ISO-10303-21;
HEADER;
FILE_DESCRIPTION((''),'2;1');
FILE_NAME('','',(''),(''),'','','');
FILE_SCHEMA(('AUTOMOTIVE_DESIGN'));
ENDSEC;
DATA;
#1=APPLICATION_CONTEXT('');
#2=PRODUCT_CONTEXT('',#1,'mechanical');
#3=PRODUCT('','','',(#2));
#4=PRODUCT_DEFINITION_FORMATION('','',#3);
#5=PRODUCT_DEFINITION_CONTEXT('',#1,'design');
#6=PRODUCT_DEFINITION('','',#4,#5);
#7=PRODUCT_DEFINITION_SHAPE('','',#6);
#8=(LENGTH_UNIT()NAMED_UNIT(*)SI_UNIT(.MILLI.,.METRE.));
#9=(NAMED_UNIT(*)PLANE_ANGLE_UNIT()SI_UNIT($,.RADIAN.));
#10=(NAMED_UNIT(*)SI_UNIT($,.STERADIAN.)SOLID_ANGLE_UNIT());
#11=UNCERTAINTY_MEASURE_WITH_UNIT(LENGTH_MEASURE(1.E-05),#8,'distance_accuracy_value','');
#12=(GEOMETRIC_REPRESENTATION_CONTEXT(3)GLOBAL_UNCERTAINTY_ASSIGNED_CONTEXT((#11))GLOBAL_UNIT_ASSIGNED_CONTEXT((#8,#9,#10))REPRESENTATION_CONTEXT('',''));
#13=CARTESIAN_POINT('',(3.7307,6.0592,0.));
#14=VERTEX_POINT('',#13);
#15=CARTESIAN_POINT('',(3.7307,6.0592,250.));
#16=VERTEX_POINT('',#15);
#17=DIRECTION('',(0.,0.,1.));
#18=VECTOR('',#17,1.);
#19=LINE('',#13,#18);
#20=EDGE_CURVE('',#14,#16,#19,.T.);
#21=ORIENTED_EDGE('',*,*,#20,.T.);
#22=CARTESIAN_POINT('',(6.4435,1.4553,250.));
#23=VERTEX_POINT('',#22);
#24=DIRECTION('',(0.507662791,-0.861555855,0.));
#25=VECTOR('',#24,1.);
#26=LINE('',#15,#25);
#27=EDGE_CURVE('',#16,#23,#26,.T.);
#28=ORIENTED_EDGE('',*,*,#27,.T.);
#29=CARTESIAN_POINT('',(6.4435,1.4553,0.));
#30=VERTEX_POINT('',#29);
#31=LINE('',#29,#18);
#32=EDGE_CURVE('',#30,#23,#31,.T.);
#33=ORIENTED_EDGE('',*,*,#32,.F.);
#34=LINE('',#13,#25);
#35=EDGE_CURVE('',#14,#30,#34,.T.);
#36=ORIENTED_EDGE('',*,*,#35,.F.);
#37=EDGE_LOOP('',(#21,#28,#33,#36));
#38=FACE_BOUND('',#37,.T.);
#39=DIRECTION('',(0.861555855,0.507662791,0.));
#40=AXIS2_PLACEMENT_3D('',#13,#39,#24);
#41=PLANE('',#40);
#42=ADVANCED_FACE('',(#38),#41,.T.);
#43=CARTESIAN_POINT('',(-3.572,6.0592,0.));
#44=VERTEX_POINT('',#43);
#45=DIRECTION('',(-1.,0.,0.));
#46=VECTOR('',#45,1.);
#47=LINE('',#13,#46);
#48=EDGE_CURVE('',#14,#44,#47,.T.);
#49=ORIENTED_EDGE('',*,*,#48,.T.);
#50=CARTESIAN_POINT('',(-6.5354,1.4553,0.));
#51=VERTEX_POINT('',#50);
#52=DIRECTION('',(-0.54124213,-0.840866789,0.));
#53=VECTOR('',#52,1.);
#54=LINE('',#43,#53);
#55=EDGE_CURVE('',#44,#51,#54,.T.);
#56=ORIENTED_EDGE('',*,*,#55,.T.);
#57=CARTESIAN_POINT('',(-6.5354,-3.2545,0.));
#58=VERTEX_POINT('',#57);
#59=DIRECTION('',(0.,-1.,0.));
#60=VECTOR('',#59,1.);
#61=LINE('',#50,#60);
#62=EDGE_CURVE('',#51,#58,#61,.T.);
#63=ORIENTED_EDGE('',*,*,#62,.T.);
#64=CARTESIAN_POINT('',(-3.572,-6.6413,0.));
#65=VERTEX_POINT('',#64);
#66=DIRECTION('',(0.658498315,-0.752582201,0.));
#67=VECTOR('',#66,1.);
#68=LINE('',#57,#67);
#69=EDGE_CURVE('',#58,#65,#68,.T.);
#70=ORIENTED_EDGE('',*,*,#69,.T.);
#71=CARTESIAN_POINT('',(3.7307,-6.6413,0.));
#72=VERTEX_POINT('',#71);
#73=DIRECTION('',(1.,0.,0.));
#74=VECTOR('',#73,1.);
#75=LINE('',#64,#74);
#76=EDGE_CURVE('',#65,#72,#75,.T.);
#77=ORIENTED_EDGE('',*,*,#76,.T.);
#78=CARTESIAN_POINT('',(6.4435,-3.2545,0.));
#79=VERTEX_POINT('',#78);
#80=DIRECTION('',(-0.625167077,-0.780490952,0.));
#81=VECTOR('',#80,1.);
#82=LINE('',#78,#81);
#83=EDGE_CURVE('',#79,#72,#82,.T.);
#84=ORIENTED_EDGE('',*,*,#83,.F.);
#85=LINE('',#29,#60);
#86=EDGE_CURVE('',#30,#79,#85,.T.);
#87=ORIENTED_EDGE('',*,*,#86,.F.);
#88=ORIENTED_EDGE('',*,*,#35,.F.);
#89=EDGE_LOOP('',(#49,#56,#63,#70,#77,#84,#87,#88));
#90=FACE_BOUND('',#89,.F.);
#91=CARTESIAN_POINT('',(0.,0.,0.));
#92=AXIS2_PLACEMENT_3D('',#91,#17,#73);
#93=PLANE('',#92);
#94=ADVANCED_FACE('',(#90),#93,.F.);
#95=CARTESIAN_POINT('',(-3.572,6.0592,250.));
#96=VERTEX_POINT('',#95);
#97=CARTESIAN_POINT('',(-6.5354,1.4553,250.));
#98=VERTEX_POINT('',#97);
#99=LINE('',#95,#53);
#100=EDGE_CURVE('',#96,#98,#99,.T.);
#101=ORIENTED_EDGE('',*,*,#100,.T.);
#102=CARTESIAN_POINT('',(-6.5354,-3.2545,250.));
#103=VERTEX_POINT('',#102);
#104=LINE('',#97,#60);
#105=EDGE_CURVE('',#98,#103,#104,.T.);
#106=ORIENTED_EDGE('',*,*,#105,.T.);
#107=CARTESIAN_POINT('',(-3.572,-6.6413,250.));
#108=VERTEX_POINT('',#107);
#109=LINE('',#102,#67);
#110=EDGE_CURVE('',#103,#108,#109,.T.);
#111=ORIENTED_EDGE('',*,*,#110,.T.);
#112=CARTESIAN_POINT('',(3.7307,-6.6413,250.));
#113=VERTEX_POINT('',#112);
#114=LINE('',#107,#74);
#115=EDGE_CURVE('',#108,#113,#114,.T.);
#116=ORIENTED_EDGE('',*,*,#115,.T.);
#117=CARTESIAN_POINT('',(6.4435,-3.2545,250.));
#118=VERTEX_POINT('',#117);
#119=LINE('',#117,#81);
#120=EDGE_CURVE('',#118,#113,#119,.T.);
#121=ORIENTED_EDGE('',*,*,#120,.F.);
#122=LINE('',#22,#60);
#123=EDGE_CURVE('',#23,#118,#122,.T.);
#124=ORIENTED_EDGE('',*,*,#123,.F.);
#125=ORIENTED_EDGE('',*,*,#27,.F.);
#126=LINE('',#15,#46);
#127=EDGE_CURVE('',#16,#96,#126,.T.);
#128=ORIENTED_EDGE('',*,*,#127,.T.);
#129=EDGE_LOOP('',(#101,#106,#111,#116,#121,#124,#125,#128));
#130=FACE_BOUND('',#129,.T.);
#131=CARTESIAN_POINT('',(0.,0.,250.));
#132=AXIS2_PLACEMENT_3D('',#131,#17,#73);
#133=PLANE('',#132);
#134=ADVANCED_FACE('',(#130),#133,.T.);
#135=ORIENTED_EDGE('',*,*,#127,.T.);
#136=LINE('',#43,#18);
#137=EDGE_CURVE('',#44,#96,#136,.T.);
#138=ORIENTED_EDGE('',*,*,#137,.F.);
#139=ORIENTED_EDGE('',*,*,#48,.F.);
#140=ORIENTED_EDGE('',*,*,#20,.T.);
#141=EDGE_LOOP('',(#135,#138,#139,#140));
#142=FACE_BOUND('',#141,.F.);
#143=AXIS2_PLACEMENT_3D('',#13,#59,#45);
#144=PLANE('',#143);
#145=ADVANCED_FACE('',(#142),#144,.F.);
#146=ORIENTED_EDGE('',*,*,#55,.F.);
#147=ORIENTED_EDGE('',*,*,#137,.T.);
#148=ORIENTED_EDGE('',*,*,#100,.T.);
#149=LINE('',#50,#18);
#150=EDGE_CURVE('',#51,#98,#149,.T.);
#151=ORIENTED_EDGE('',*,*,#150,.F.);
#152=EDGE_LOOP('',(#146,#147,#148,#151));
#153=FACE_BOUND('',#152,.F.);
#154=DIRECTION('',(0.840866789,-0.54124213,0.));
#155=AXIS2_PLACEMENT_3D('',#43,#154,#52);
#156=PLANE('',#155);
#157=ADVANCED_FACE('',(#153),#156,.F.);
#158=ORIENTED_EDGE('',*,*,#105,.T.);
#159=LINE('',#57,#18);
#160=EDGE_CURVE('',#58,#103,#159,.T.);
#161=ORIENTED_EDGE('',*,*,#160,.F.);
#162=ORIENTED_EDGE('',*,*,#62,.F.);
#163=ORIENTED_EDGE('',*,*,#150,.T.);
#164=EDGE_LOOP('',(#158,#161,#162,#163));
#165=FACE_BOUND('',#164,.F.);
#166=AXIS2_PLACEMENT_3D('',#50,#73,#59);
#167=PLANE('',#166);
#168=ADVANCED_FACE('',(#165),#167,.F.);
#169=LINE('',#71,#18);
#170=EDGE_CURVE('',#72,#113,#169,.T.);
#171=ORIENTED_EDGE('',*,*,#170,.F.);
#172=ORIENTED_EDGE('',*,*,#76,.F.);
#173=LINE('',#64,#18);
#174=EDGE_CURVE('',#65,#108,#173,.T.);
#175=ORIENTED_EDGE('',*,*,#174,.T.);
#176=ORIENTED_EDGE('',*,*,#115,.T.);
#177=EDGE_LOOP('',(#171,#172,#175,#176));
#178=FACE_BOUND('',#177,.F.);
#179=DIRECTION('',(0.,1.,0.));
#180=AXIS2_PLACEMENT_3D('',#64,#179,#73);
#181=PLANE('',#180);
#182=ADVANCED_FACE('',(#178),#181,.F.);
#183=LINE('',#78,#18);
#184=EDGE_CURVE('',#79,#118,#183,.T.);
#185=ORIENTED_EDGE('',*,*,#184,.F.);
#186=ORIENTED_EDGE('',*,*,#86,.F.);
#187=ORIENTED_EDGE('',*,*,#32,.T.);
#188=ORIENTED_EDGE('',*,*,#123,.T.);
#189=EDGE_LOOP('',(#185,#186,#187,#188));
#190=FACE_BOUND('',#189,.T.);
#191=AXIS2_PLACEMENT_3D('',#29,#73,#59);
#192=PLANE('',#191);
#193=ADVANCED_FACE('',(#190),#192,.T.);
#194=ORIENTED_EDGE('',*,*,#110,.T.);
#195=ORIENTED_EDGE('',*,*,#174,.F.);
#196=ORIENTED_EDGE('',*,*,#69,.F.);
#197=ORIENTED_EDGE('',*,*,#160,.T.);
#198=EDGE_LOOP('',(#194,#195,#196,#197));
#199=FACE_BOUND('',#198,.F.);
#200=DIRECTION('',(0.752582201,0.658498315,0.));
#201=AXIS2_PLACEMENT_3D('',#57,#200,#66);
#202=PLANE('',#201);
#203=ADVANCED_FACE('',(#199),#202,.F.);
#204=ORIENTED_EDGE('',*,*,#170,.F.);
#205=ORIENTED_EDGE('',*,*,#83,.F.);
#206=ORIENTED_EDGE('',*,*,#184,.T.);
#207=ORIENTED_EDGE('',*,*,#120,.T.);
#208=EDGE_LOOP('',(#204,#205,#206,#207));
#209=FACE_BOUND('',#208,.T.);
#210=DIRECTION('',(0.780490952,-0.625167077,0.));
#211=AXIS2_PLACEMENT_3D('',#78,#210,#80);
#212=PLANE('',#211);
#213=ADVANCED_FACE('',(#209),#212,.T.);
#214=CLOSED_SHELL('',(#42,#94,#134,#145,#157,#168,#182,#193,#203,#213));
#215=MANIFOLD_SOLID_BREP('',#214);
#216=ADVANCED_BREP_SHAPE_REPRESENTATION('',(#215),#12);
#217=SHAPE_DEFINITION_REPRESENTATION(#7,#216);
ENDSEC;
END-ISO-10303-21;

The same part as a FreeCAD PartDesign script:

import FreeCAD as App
import Part
import Sketcher
Q = App.Units.Quantity


def add_polygon(sketch, points):
    """Adds a closed chain of lines whose ends are joined by coincident constraints."""
    first, n = sketch.GeometryCount, len(points)
    for a, b in zip(points, points[1:] + points[:1]):
        sketch.addGeometry(Part.LineSegment(App.Vector(*a, 0), App.Vector(*b, 0)), False)
    for i in range(n):
        sketch.addConstraint(Sketcher.Constraint("Coincident", first + i, 2, first + (i + 1) % n, 1))

doc = App.newDocument("Part")
params = doc.addObject("Spreadsheet::Sheet", "Params")
for row, (alias, value) in enumerate([
    ("pad1_length", "250 mm"),
], start=1):
    params.set(f"A{row}", alias)
    params.set(f"B{row}", "=" + value)
    params.setAlias(f"B{row}", alias)

body = doc.addObject("PartDesign::Body", "Body")

# Sketch on XY plane
sketch1 = body.newObject("Sketcher::SketchObject", "Sketch")
sketch1.AttachmentSupport = (doc.getObject("XY_Plane"), [""])
sketch1.MapMode = "FlatFace"
add_polygon(sketch1, [(6.4, 1.5), (3.7, 6.1), (-3.6, 6.1), (-6.5, 1.5), (-6.5, -3.3), (-3.6, -6.6), (3.7, -6.6), (6.4, -3.3)])  # lines 0-7
sketch1.addConstraint([
    Sketcher.Constraint("Horizontal", 1),
    Sketcher.Constraint("Vertical", 3),
    Sketcher.Constraint("Horizontal", 5),
    Sketcher.Constraint("Vertical", 7),
    Sketcher.Constraint("Horizontal", 3, 2, 6, 2),
    Sketcher.Constraint("Horizontal", 2, 2, 7, 2),
    Sketcher.Constraint("Vertical", 1, 2, 4, 2),
    Sketcher.Constraint("Vertical", 0, 2, 5, 2),
    Sketcher.Constraint("DistanceX", 1, 2, 1, 1, Q("7.3027 mm")),
    Sketcher.Constraint("DistanceY", 3, 2, 3, 1, Q("4.7098 mm")),
    Sketcher.Constraint("DistanceX", 1, 2, -1, 1, Q("3.572 mm")),
    Sketcher.Constraint("DistanceY", 2, 2, 1, 2, Q("4.604 mm")),
    Sketcher.Constraint("DistanceX", 2, 2, 0, 2, Q("10.266 mm")),
    Sketcher.Constraint("DistanceX", 3, 2, 6, 2, Q("12.979 mm")),
    Sketcher.Constraint("Distance", 4, Q("4.5002 mm")),
    Sketcher.Constraint("DistanceY", -1, 1, 0, 2, Q("6.0592 mm")),
])
pad1 = body.newObject("PartDesign::Pad", "Pad")
pad1.Profile = sketch1
pad1.setExpression("Length", "Params.pad1_length")

doc.recompute()
